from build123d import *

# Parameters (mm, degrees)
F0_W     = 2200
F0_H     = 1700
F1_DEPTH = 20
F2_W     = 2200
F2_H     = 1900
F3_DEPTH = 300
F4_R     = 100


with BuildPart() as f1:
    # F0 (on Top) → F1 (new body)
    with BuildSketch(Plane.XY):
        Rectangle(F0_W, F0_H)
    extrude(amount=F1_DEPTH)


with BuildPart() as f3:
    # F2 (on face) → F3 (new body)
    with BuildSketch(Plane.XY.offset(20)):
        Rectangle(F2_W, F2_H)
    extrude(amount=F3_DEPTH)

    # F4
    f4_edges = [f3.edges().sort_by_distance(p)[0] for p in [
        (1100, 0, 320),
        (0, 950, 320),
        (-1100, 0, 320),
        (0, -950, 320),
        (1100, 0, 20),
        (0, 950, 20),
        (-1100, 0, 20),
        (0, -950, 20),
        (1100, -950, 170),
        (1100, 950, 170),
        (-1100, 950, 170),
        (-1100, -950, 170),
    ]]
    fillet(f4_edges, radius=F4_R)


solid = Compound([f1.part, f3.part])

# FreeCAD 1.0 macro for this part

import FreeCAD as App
import Part
import Sketcher
from FreeCAD import Vector

doc = App.newDocument("Part")
body = doc.addObject("PartDesign::Body", "Body")

# Sketch on XY plane
sketch1 = body.newObject("Sketcher::SketchObject", "Sketch")
sketch1.AttachmentSupport = (doc.getObject("XY_Plane"), [""])
sketch1.MapMode = "FlatFace"
sketch1.addGeometry(Part.LineSegment(Vector(-1100, 850, 0), Vector(-1100, -850, 0)), False)
sketch1.addGeometry(Part.LineSegment(Vector(-1100, -850, 0), Vector(1100, -850, 0)), False)
sketch1.addGeometry(Part.LineSegment(Vector(1100, -850, 0), Vector(1100, 850, 0)), False)
sketch1.addGeometry(Part.LineSegment(Vector(1100, 850, 0), Vector(-1100, 850, 0)), False)
sketch1.addConstraint(Sketcher.Constraint("Coincident", 0, 2, 1, 1))
sketch1.addConstraint(Sketcher.Constraint("Coincident", 1, 2, 2, 1))
sketch1.addConstraint(Sketcher.Constraint("Coincident", 2, 2, 3, 1))
sketch1.addConstraint(Sketcher.Constraint("Coincident", 3, 2, 0, 1))
sketch1.addConstraint(Sketcher.Constraint("Vertical", 0))
sketch1.addConstraint(Sketcher.Constraint("Horizontal", 1))
sketch1.addConstraint(Sketcher.Constraint("Vertical", 2))
sketch1.addConstraint(Sketcher.Constraint("Horizontal", 3))
sketch1.addConstraint(Sketcher.Constraint("Symmetric", 0, 2, 2, 2, -1, 1))
sketch1.addConstraint(Sketcher.Constraint("DistanceX", 1, 1, 1, 2, 2200.0))
sketch1.addConstraint(Sketcher.Constraint("DistanceY", 0, 2, 0, 1, 1700.0))
pad1 = body.newObject("PartDesign::Pad", "Pad")
pad1.Profile = sketch1
pad1.Length = 20
body2 = doc.addObject("PartDesign::Body", "Body001")

# Sketch on XY plane
sketch2 = body2.newObject("Sketcher::SketchObject", "Sketch001")
sketch2.AttachmentSupport = (doc.getObject("XY_Plane001"), [""])
sketch2.MapMode = "FlatFace"
sketch2.AttachmentOffset = App.Placement(Vector(0, 0, 20), App.Rotation())
sketch2.addGeometry(Part.LineSegment(Vector(-1100, 950, 0), Vector(-1100, -950, 0)), False)
sketch2.addGeometry(Part.LineSegment(Vector(-1100, -950, 0), Vector(1100, -950, 0)), False)
sketch2.addGeometry(Part.LineSegment(Vector(1100, -950, 0), Vector(1100, 950, 0)), False)
sketch2.addGeometry(Part.LineSegment(Vector(1100, 950, 0), Vector(-1100, 950, 0)), False)
sketch2.addConstraint(Sketcher.Constraint("Coincident", 0, 2, 1, 1))
sketch2.addConstraint(Sketcher.Constraint("Coincident", 1, 2, 2, 1))
sketch2.addConstraint(Sketcher.Constraint("Coincident", 2, 2, 3, 1))
sketch2.addConstraint(Sketcher.Constraint("Coincident", 3, 2, 0, 1))
sketch2.addConstraint(Sketcher.Constraint("Vertical", 0))
sketch2.addConstraint(Sketcher.Constraint("Horizontal", 1))
sketch2.addConstraint(Sketcher.Constraint("Vertical", 2))
sketch2.addConstraint(Sketcher.Constraint("Horizontal", 3))
sketch2.addConstraint(Sketcher.Constraint("Symmetric", 0, 2, 2, 2, -1, 1))
sketch2.addConstraint(Sketcher.Constraint("DistanceX", 1, 1, 1, 2, 2200.0))
sketch2.addConstraint(Sketcher.Constraint("DistanceY", 0, 2, 0, 1, 1900.0))
pad2 = body2.newObject("PartDesign::Pad", "Pad001")
pad2.Profile = sketch2
pad2.Length = 300
doc.recompute()

fillet = body2.newObject("PartDesign::Fillet", "Fillet")
fillet.Base = (pad2, ["Edge1"])
fillet.UseAllEdges = True
fillet.Radius = 100

doc.recompute()
